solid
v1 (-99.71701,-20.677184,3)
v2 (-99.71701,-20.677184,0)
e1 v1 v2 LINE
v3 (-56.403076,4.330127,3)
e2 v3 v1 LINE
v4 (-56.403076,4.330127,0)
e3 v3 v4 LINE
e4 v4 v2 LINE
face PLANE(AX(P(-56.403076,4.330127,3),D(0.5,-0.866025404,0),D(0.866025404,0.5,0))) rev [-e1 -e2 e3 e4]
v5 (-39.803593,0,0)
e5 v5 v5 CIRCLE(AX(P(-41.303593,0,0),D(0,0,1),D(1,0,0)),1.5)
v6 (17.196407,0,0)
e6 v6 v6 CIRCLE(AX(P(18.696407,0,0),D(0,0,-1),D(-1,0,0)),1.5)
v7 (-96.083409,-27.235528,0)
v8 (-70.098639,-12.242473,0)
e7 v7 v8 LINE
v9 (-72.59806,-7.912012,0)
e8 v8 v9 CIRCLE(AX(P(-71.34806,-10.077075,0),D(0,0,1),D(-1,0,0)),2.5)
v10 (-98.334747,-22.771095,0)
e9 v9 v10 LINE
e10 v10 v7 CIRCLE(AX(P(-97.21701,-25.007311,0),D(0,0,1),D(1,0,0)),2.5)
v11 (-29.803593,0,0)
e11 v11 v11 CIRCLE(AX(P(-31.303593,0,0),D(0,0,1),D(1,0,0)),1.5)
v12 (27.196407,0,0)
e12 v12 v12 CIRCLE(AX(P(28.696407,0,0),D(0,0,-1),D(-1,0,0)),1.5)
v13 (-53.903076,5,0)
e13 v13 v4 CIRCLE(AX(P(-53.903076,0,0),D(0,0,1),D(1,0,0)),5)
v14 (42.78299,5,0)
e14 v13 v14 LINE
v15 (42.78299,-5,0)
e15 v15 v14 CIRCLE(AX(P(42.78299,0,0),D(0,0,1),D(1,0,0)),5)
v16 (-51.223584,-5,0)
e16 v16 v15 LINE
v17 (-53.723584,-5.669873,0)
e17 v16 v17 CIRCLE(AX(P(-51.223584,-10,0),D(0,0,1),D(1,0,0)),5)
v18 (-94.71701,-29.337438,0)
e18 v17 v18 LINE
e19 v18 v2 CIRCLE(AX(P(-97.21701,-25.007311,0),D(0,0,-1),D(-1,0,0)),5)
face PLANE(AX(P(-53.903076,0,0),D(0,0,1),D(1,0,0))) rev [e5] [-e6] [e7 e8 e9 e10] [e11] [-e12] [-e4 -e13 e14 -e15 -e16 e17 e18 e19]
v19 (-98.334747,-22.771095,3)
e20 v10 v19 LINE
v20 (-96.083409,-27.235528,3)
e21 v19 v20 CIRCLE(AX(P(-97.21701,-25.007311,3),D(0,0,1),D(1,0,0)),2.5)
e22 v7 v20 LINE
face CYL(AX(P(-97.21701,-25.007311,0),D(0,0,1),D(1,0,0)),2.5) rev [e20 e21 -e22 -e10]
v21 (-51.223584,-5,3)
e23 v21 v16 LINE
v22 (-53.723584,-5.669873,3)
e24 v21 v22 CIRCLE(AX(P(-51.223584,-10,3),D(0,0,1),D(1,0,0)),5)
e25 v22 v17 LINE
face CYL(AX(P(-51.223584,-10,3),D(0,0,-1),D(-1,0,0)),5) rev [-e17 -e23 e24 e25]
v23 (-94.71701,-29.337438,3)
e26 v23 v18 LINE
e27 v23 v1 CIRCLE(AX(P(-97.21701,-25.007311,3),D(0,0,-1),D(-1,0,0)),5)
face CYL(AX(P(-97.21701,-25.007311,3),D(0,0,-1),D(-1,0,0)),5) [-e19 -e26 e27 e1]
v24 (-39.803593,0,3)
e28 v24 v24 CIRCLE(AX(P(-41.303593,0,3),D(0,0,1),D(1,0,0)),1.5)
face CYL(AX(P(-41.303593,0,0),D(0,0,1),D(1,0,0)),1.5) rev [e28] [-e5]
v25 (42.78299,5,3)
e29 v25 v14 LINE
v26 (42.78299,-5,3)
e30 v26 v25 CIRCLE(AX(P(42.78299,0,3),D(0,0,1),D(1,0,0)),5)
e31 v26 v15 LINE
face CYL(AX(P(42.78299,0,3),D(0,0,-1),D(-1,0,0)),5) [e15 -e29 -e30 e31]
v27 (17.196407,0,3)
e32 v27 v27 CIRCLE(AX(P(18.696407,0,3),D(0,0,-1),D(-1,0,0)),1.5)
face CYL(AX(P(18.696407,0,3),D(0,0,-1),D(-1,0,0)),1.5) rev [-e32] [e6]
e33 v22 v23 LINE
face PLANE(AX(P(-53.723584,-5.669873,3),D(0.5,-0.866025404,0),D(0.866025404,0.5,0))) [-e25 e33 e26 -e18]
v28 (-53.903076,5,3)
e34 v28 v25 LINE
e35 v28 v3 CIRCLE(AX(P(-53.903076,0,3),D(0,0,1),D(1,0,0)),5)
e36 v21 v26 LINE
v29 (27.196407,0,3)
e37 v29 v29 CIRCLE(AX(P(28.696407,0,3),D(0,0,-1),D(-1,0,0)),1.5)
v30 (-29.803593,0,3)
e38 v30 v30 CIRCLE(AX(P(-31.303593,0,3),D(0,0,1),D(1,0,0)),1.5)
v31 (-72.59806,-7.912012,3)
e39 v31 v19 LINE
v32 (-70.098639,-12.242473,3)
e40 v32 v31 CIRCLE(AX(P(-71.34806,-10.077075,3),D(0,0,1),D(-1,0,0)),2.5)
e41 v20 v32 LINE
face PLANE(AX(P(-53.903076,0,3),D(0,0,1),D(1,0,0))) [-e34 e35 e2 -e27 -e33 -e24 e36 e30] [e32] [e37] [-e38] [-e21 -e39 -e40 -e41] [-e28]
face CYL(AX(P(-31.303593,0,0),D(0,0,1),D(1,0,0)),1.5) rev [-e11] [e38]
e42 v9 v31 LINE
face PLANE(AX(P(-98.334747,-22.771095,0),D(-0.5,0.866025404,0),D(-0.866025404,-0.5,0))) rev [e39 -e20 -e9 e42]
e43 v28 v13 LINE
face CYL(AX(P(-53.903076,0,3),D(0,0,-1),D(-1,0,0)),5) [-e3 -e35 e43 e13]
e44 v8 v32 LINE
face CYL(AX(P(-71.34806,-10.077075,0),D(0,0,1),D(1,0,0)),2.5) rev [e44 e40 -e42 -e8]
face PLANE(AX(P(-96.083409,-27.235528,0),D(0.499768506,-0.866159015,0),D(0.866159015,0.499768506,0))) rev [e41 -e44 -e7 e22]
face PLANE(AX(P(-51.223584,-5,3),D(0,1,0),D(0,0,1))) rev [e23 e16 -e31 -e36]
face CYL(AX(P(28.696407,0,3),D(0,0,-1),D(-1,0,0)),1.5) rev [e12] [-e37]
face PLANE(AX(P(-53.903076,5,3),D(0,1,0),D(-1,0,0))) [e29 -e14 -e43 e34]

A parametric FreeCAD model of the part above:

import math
import FreeCAD as App
import Part
import Sketcher

V = App.Vector
Q = App.Units.Quantity

doc = App.newDocument("Part")
body = doc.addObject("PartDesign::Body", "Body")

# Sketch on XY plane
sketch1 = body.newObject("Sketcher::SketchObject", "Sketch")
sketch1.AttachmentSupport = (doc.getObject("XY_Plane"), [""])
sketch1.MapMode = "FlatFace"
sketch1.addGeometry([
    Part.LineSegment(V(42.8, 5, 0), V(-53.9, 5, 0)),  # 0
    Part.ArcOfCircle(Part.Circle(V(-53.9, 0, 0), V(0, 0, 1), 5), math.radians(90), math.radians(120)),  # 1
    Part.LineSegment(V(-56.4, 4.3, 0), V(-99.7, -20.7, 0)),  # 2
    Part.ArcOfCircle(Part.Circle(V(-97.2, -25, 0), V(0, 0, 1), 5), math.radians(120), math.radians(300)),  # 3
    Part.LineSegment(V(-94.7, -29.3, 0), V(-53.7, -5.7, 0)),  # 4
    Part.ArcOfCircle(Part.Circle(V(-51.2, -10, 0), V(0, 0, 1), 5), math.radians(90), math.radians(120)),  # 5
    Part.LineSegment(V(-51.2, -5, 0), V(42.8, -5, 0)),  # 6
    Part.ArcOfCircle(Part.Circle(V(42.8, 0, 0), V(0, 0, 1), 5), math.radians(-90), math.radians(90)),  # 7
], False)
sketch1.addConstraint([
    Sketcher.Constraint("Tangent", 0, 2, 1, 1),
    Sketcher.Constraint("Tangent", 1, 2, 2, 1),
    Sketcher.Constraint("Tangent", 2, 2, 3, 1),
    Sketcher.Constraint("Tangent", 3, 2, 4, 1),
    Sketcher.Constraint("Tangent", 4, 2, 5, 2),
    Sketcher.Constraint("Tangent", 5, 1, 6, 1),
    Sketcher.Constraint("Tangent", 6, 2, 7, 1),
    Sketcher.Constraint("Tangent", 7, 2, 0, 1),
    Sketcher.Constraint("Horizontal", 0),
    Sketcher.Constraint("Horizontal", 6),
    Sketcher.Constraint("Equal", 1, 3),
    Sketcher.Constraint("Equal", 3, 5),
    Sketcher.Constraint("Equal", 5, 7),
    Sketcher.Constraint("PointOnObject", 1, 3, -1),
    Sketcher.Constraint("Parallel", 2, 4),
    Sketcher.Constraint("Radius", 1, Q("5 mm")),
    Sketcher.Constraint("Angle", 2, Q("-150 deg")),
    Sketcher.Constraint("DistanceX", 3, 3, 7, 3, Q("140 mm")),
    Sketcher.Constraint("Distance", 4, Q("47.335131 mm")),
    Sketcher.Constraint("DistanceX", 3, 3, -1, 1, Q("97.21701 mm")),
])
pad1 = body.newObject("PartDesign::Pad", "Pad")
pad1.Profile = sketch1
pad1.Length = 3

# Sketch on XY plane
sketch2 = body.newObject("Sketcher::SketchObject", "Sketch001")
sketch2.AttachmentSupport = (doc.getObject("XY_Plane"), [""])
sketch2.MapMode = "FlatFace"
sketch2.AttachmentOffset = App.Placement(V(0, 0, 3), App.Rotation())
sketch2.addGeometry([
    Part.LineSegment(V(-72.6, -7.9, 0), V(-98.3, -22.8, 0)),
    Part.ArcOfCircle(Part.Circle(V(-97.2, -25, 0), V(0, 0, 1), 2.5), math.radians(117), math.radians(297)),
    Part.LineSegment(V(-96.1, -27.2, 0), V(-70.1, -12.2, 0)),
    Part.ArcOfCircle(Part.Circle(V(-71.3, -10.1, 0), V(0, 0, 1), 2.5), math.radians(-60), math.radians(120)),
], False)
sketch2.addConstraint([
    Sketcher.Constraint("Coincident", 0, 2, 1, 1),
    Sketcher.Constraint("Coincident", 1, 2, 2, 1),
    Sketcher.Constraint("Tangent", 2, 2, 3, 1),
    Sketcher.Constraint("Tangent", 3, 2, 0, 1),
    Sketcher.Constraint("Equal", 1, 3),
    Sketcher.Constraint("Radius", 1, Q("2.5 mm")),
    Sketcher.Constraint("Angle", 0, Q("-150 deg")),
    Sketcher.Constraint("Distance", 2, Q("30 mm")),
    Sketcher.Constraint("DistanceX", 1, 3, 1, 2, Q("1.133601 mm")),
    Sketcher.Constraint("DistanceY", 1, 3, 3, 2, Q("17.0953 mm")),
    Sketcher.Constraint("DistanceX", 1, 3, -1, 1, Q("97.21701 mm")),
    Sketcher.Constraint("DistanceY", 1, 3, -1, 1, Q("25.007311 mm")),
])
pocket1 = body.newObject("PartDesign::Pocket", "Pocket")
pocket1.Profile = sketch2
pocket1.Length = 3

# Sketch on XY plane
sketch3 = body.newObject("Sketcher::SketchObject", "Sketch002")
sketch3.AttachmentSupport = (doc.getObject("XY_Plane"), [""])
sketch3.MapMode = "FlatFace"
sketch3.AttachmentOffset = App.Placement(V(0, 0, 3), App.Rotation())
sketch3.addGeometry([
    Part.Circle(V(-31.3, 0, 0), V(0, 0, 1), 1.5),
    Part.Circle(V(-41.3, 0, 0), V(0, 0, 1), 1.5),
], False)
sketch3.addConstraint([
    Sketcher.Constraint("Equal", 0, 1),
    Sketcher.Constraint("PointOnObject", 0, 3, -1),
    Sketcher.Constraint("PointOnObject", 1, 3, -1),
    Sketcher.Constraint("Diameter", 0, Q("3 mm")),
    Sketcher.Constraint("DistanceX", 1, 3, 0, 3, Q("10 mm")),
    Sketcher.Constraint("DistanceX", 0, 3, -1, 1, Q("31.303593 mm")),
])
pocket2 = body.newObject("PartDesign::Pocket", "Pocket001")
pocket2.Profile = sketch3
pocket2.Length = 3

# Sketch on XY plane
sketch4 = body.newObject("Sketcher::SketchObject", "Sketch003")
sketch4.AttachmentSupport = (doc.getObject("XY_Plane"), [""])
sketch4.MapMode = "FlatFace"
sketch4.addGeometry([
    Part.Circle(V(18.7, 0, 0), V(0, 0, 1), 1.5),
    Part.Circle(V(28.7, 0, 0), V(0, 0, 1), 1.5),
], False)
sketch4.addConstraint([
    Sketcher.Constraint("Equal", 0, 1),
    Sketcher.Constraint("PointOnObject", 0, 3, -1),
    Sketcher.Constraint("PointOnObject", 1, 3, -1),
    Sketcher.Constraint("Diameter", 0, Q("3 mm")),
    Sketcher.Constraint("DistanceX", 0, 3, 1, 3, Q("10 mm")),
    Sketcher.Constraint("DistanceX", -1, 1, 0, 3, Q("18.696407 mm")),
])
pocket3 = body.newObject("PartDesign::Pocket", "Pocket002")
pocket3.Profile = sketch4
pocket3.Type = "ThroughAll"
pocket3.Reversed = True

doc.recompute()
